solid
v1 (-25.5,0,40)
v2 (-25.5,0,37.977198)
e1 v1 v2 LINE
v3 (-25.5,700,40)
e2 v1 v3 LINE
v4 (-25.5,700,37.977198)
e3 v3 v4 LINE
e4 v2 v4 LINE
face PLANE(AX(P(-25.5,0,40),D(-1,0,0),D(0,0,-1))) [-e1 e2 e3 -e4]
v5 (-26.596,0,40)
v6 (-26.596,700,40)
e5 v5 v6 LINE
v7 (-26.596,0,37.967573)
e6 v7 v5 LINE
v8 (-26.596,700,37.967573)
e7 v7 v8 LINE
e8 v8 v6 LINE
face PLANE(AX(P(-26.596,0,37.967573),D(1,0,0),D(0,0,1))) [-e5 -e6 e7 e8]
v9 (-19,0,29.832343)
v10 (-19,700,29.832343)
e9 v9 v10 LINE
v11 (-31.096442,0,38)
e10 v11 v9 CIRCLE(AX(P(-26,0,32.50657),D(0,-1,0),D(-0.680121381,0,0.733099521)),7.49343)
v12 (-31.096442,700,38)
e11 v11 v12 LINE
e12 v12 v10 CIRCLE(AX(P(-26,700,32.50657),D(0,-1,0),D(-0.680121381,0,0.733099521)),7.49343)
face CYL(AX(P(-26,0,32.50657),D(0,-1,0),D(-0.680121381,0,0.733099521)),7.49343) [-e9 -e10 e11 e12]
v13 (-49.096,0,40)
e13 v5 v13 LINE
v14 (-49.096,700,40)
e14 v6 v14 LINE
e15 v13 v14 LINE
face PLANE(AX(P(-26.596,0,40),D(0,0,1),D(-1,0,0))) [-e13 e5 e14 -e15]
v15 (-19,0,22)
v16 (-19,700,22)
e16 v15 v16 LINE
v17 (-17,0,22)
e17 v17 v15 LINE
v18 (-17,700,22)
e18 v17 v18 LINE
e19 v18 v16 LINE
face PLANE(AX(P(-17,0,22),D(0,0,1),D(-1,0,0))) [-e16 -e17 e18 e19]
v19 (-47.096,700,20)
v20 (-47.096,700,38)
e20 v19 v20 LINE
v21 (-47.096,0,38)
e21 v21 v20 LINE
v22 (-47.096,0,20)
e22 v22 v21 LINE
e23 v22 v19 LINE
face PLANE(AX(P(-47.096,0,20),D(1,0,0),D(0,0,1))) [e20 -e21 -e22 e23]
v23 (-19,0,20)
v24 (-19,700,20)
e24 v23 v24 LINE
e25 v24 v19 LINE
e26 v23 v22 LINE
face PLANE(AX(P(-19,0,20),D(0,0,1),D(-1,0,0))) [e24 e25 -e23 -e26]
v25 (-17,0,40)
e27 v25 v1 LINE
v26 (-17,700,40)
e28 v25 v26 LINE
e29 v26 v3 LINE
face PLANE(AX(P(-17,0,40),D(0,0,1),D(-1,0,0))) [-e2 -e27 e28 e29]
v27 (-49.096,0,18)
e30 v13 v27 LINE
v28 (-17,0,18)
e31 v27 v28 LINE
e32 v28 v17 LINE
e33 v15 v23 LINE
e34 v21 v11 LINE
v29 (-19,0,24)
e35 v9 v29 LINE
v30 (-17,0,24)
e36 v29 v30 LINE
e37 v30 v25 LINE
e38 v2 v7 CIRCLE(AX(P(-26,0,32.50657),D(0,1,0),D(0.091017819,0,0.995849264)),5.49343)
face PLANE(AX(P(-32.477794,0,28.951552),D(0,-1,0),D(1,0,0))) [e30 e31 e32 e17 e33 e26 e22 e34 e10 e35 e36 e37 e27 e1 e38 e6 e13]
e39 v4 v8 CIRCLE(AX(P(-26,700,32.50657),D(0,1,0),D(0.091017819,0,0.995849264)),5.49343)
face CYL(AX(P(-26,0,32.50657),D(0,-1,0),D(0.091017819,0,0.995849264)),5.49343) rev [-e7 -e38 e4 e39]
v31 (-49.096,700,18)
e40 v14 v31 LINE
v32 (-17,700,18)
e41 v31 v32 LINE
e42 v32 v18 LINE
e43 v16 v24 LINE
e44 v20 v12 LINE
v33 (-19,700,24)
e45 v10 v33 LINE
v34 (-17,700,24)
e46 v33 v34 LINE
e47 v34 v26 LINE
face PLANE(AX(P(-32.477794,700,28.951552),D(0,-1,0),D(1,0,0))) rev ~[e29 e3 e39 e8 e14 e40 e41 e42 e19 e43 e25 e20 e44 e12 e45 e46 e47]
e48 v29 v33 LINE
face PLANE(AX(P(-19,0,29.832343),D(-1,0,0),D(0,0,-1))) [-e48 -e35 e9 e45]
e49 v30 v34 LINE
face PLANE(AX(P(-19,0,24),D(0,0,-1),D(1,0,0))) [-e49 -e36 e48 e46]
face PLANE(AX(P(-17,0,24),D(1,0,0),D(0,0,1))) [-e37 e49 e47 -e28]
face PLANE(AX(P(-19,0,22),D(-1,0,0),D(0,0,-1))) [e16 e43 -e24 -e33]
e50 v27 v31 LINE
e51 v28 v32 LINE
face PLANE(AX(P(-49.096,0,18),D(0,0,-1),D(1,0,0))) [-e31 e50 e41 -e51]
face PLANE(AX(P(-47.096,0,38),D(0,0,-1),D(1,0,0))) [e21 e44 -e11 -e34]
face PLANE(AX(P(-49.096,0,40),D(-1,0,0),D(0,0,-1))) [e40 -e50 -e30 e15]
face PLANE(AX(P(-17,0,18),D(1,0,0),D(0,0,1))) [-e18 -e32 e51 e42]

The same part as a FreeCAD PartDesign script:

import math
import FreeCAD as App
import Part
import Sketcher
Q = App.Units.Quantity

doc = App.newDocument("Part")
body = doc.addObject("PartDesign::Body", "Body")

sketch1 = body.newObject("Sketcher::SketchObject", "Sketch")
sketch1.AttachmentSupport = (doc.getObject("XZ_Plane"), [""])
sketch1.MapMode = "FlatFace"
sketch1.addGeometry([
    Part.LineSegment(App.Vector(7.5, 37.974085, 0), App.Vector(7.5, 40, 0)),
    Part.LineSegment(App.Vector(7.5, 40, 0), App.Vector(-15, 40, 0)),
    Part.LineSegment(App.Vector(-15, 40, 0), App.Vector(-15, 24, 0)),
    Part.LineSegment(App.Vector(-15, 24, 0), App.Vector(-11, 24, 0)),
    Part.LineSegment(App.Vector(-11, 24, 0), App.Vector(-11, 26, 0)),
    Part.LineSegment(App.Vector(-11, 26, 0), App.Vector(-9, 26, 0)),
    Part.LineSegment(App.Vector(-9, 26, 0), App.Vector(-9, 20, 0)),
    Part.LineSegment(App.Vector(-9, 20, 0), App.Vector(-11, 20, 0)),
    Part.LineSegment(App.Vector(-11, 20, 0), App.Vector(-11, 22, 0)),
    Part.LineSegment(App.Vector(-11, 22, 0), App.Vector(-15, 22, 0)),
    Part.LineSegment(App.Vector(-15, 22, 0), App.Vector(-15, 7.7, 0)),
    Part.LineSegment(App.Vector(-15, 7.7, 0), App.Vector(-13, 7.7, 0)),
    Part.LineSegment(App.Vector(-13, 7.7, 0), App.Vector(-13, 11.492084, 0)),
    Part.LineSegment(App.Vector(-13, 11.492084, 0), App.Vector(-7, 11.492084, 0)),
    Part.LineSegment(App.Vector(-7, 11.492084, 0), App.Vector(-7, 3.7, 0)),
    Part.LineSegment(App.Vector(-7, 3.7, 0), App.Vector(-11, 3.7, 0)),
    Part.LineSegment(App.Vector(-11, 3.7, 0), App.Vector(-11, 5.7, 0)),
    Part.LineSegment(App.Vector(-11, 5.7, 0), App.Vector(-15, 5.7, 0)),
    Part.LineSegment(App.Vector(-15, 5.7, 0), App.Vector(-15, 0, 0)),
    Part.LineSegment(App.Vector(-15, 0, 0), App.Vector(-5, 0, 0)),
    Part.LineSegment(App.Vector(-5, 0, 0), App.Vector(-5, 13.492084, 0)),
    Part.LineSegment(App.Vector(-5, 13.492084, 0), App.Vector(-9.158894, 13.492084, 0)),
    Part.LineSegment(App.Vector(-9.158894, 13.492084, 0), App.Vector(-9.158894, 15.492084, 0)),
    Part.LineSegment(App.Vector(-9.158894, 15.492084, 0), App.Vector(1.5, 20, 0)),
    Part.LineSegment(App.Vector(1.5, 20, 0), App.Vector(10.841106, 15.492084, 0)),
    Part.LineSegment(App.Vector(10.841106, 15.492084, 0), App.Vector(10.841106, 13.492084, 0)),
    Part.LineSegment(App.Vector(10.841106, 13.492084, 0), App.Vector(8, 13.492084, 0)),
    Part.LineSegment(App.Vector(8, 13.492084, 0), App.Vector(8, 0, 0)),
    Part.LineSegment(App.Vector(8, 0, 0), App.Vector(17, 0, 0)),
    Part.LineSegment(App.Vector(17, 0, 0), App.Vector(17, 40, 0)),
    Part.LineSegment(App.Vector(17, 40, 0), App.Vector(8.5, 40, 0)),
    Part.LineSegment(App.Vector(8.5, 40, 0), App.Vector(8.5, 37.974085, 0)),
    Part.ArcOfCircle(Part.Circle(App.Vector(8, 32.50657, 0), App.Vector(0, 0, 1), 5.49033), math.radians(14.369826), math.radians(84.774879)),
    Part.LineSegment(App.Vector(13.318559, 33.869159, 0), App.Vector(13.431853, 31.707387, 0)),
    Part.ArcOfCircle(Part.Circle(App.Vector(8, 32.50657, 0), App.Vector(0, 0, 1), 5.49033), math.radians(95.225121), math.radians(351.630174)),
    Part.LineSegment(App.Vector(-13, 18, 0), App.Vector(-8.363471, 18, 0)),
    Part.LineSegment(App.Vector(-8.363471, 18, 0), App.Vector(-11.158894, 16.817745, 0)),
    Part.LineSegment(App.Vector(-11.158894, 16.817745, 0), App.Vector(-11.158894, 13.492084, 0)),
    Part.LineSegment(App.Vector(-11.158894, 13.492084, 0), App.Vector(-13, 13.492084, 0)),
    Part.LineSegment(App.Vector(-13, 13.492084, 0), App.Vector(-13, 18, 0)),
    Part.LineSegment(App.Vector(-13, 28, 0), App.Vector(-13, 37.999999, 0)),
    Part.LineSegment(App.Vector(-13, 37.999999, 0), App.Vector(2.908116, 37.999999, 0)),
    Part.ArcOfCircle(Part.Circle(App.Vector(8, 32.50657, 0), App.Vector(0, 0, 1), 7.49033), math.radians(132.827575), math.radians(339.153685)),
    Part.LineSegment(App.Vector(15, 29.841043, 0), App.Vector(15, 2, 0)),
    Part.LineSegment(App.Vector(15, 2, 0), App.Vector(10, 2, 0)),
    Part.LineSegment(App.Vector(10, 2, 0), App.Vector(10, 12, 0)),
    Part.LineSegment(App.Vector(10, 12, 0), App.Vector(12.841106, 12, 0)),
    Part.LineSegment(App.Vector(12.841106, 12, 0), App.Vector(12.841106, 16.747619, 0)),
    Part.LineSegment(App.Vector(12.841106, 16.747619, 0), App.Vector(1.554336, 22.194492, 0)),
    Part.LineSegment(App.Vector(1.554336, 22.194492, 0), App.Vector(-7, 18.576646, 0)),
    Part.LineSegment(App.Vector(-7, 18.576646, 0), App.Vector(-7, 28, 0)),
    Part.LineSegment(App.Vector(-7, 28, 0), App.Vector(-13, 28, 0)),
    Part.ArcOfCircle(Part.Circle(App.Vector(7.999933, 32.506498, 0), App.Vector(0, 0, 1), 7.490429), math.radians(47.060637), math.radians(47.172425)),
    Part.LineSegment(App.Vector(13.091884, 37.999999, 0), App.Vector(13.102071, 37.999999, 0)),
    Part.LineSegment(App.Vector(13.102071, 37.999999, 0), App.Vector(13.102592, 37.990054, 0)),
], False)
sketch1.addConstraint([
    Sketcher.Constraint("Coincident", 0, 2, 1, 1),
    Sketcher.Constraint("Coincident", 1, 2, 2, 1),
    Sketcher.Constraint("Coincident", 2, 2, 3, 1),
    Sketcher.Constraint("Coincident", 3, 2, 4, 1),
    Sketcher.Constraint("Coincident", 4, 2, 5, 1),
    Sketcher.Constraint("Coincident", 5, 2, 6, 1),
    Sketcher.Constraint("Coincident", 6, 2, 7, 1),
    Sketcher.Constraint("Coincident", 7, 2, 8, 1),
    Sketcher.Constraint("Coincident", 8, 2, 9, 1),
    Sketcher.Constraint("Coincident", 9, 2, 10, 1),
    Sketcher.Constraint("Coincident", 10, 2, 11, 1),
    Sketcher.Constraint("Coincident", 11, 2, 12, 1),
    Sketcher.Constraint("Coincident", 12, 2, 13, 1),
    Sketcher.Constraint("Coincident", 13, 2, 14, 1),
    Sketcher.Constraint("Coincident", 14, 2, 15, 1),
    Sketcher.Constraint("Coincident", 15, 2, 16, 1),
    Sketcher.Constraint("Coincident", 16, 2, 17, 1),
    Sketcher.Constraint("Coincident", 17, 2, 18, 1),
    Sketcher.Constraint("Coincident", 18, 2, 19, 1),
    Sketcher.Constraint("Coincident", 19, 2, 20, 1),
    Sketcher.Constraint("Coincident", 20, 2, 21, 1),
    Sketcher.Constraint("Coincident", 21, 2, 22, 1),
    Sketcher.Constraint("Coincident", 22, 2, 23, 1),
    Sketcher.Constraint("Coincident", 23, 2, 24, 1),
    Sketcher.Constraint("Coincident", 24, 2, 25, 1),
    Sketcher.Constraint("Coincident", 25, 2, 26, 1),
    Sketcher.Constraint("Coincident", 26, 2, 27, 1),
    Sketcher.Constraint("Coincident", 27, 2, 28, 1),
    Sketcher.Constraint("Coincident", 28, 2, 29, 1),
    Sketcher.Constraint("Coincident", 29, 2, 30, 1),
    Sketcher.Constraint("Coincident", 30, 2, 31, 1),
    Sketcher.Constraint("Coincident", 31, 2, 32, 2),
    Sketcher.Constraint("Coincident", 32, 1, 33, 1),
    Sketcher.Constraint("Coincident", 33, 2, 34, 2),
    Sketcher.Constraint("Coincident", 34, 1, 0, 1),
    Sketcher.Constraint("Coincident", 35, 2, 36, 1),
    Sketcher.Constraint("Coincident", 36, 2, 37, 1),
    Sketcher.Constraint("Coincident", 37, 2, 38, 1),
    Sketcher.Constraint("Coincident", 38, 2, 39, 1),
    Sketcher.Constraint("Coincident", 39, 2, 35, 1),
    Sketcher.Constraint("Coincident", 40, 2, 41, 1),
    Sketcher.Constraint("Coincident", 41, 2, 42, 1),
    Sketcher.Constraint("Coincident", 42, 2, 43, 1),
    Sketcher.Constraint("Coincident", 43, 2, 44, 1),
    Sketcher.Constraint("Coincident", 44, 2, 45, 1),
    Sketcher.Constraint("Coincident", 45, 2, 46, 1),
    Sketcher.Constraint("Coincident", 46, 2, 47, 1),
    Sketcher.Constraint("Coincident", 47, 2, 48, 1),
    Sketcher.Constraint("Coincident", 48, 2, 49, 1),
    Sketcher.Constraint("Coincident", 49, 2, 50, 1),
    Sketcher.Constraint("Coincident", 50, 2, 51, 1),
    Sketcher.Constraint("Coincident", 51, 2, 40, 1),
    Sketcher.Constraint("Coincident", 52, 2, 53, 1),
    Sketcher.Constraint("Coincident", 53, 2, 54, 1),
    Sketcher.Constraint("Coincident", 54, 2, 52, 1),
    Sketcher.Constraint("Vertical", 0),
    Sketcher.Constraint("Horizontal", 1),
    Sketcher.Constraint("Vertical", 2),
    Sketcher.Constraint("Horizontal", 3),
    Sketcher.Constraint("Vertical", 4),
    Sketcher.Constraint("Horizontal", 5),
    Sketcher.Constraint("Vertical", 6),
    Sketcher.Constraint("Horizontal", 7),
    Sketcher.Constraint("Vertical", 8),
    Sketcher.Constraint("Horizontal", 9),
    Sketcher.Constraint("Vertical", 10),
    Sketcher.Constraint("Horizontal", 11),
    Sketcher.Constraint("Vertical", 12),
    Sketcher.Constraint("Horizontal", 13),
    Sketcher.Constraint("Vertical", 14),
    Sketcher.Constraint("Horizontal", 15),
    Sketcher.Constraint("Vertical", 16),
    Sketcher.Constraint("Horizontal", 17),
    Sketcher.Constraint("Vertical", 18),
    Sketcher.Constraint("Horizontal", 19),
    Sketcher.Constraint("Vertical", 20),
    Sketcher.Constraint("Horizontal", 21),
    Sketcher.Constraint("Vertical", 22),
    Sketcher.Constraint("Vertical", 25),
    Sketcher.Constraint("Horizontal", 26),
    Sketcher.Constraint("Vertical", 27),
    Sketcher.Constraint("Horizontal", 28),
    Sketcher.Constraint("Vertical", 29),
    Sketcher.Constraint("Horizontal", 30),
    Sketcher.Constraint("Vertical", 31),
    Sketcher.Constraint("Horizontal", 35),
    Sketcher.Constraint("Vertical", 37),
    Sketcher.Constraint("Horizontal", 38),
    Sketcher.Constraint("Vertical", 39),
    Sketcher.Constraint("Vertical", 40),
    Sketcher.Constraint("Horizontal", 41),
    Sketcher.Constraint("Vertical", 43),
    Sketcher.Constraint("Horizontal", 44),
    Sketcher.Constraint("Vertical", 45),
    Sketcher.Constraint("Horizontal", 46),
    Sketcher.Constraint("Vertical", 47),
    Sketcher.Constraint("Vertical", 50),
    Sketcher.Constraint("Horizontal", 51),
    Sketcher.Constraint("Horizontal", 53),
    Sketcher.Constraint("Coincident", 34, 3, 32, 3),
    Sketcher.Constraint("Coincident", 42, 3, 32, 3),
    Sketcher.Constraint("PointOnObject", 18, 2, -1),
    Sketcher.Constraint("PointOnObject", 27, 2, -1),
    Sketcher.Constraint("DistanceX", 3, 1, 3, 2, Q("4 mm")),
    Sketcher.Constraint("DistanceX", 5, 1, 5, 2, Q("2 mm")),
    Sketcher.Constraint("DistanceX", 7, 2, 7, 1, Q("2 mm")),
    Sketcher.Constraint("DistanceX", 9, 2, 9, 1, Q("4 mm")),
    Sketcher.Constraint("DistanceX", 11, 1, 11, 2, Q("2 mm")),
    Sketcher.Constraint("DistanceX", 13, 1, 13, 2, Q("6 mm")),
    Sketcher.Constraint("DistanceX", 15, 2, 15, 1, Q("4 mm")),
    Sketcher.Constraint("DistanceX", 17, 2, 17, 1, Q("4 mm")),
    Sketcher.Constraint("DistanceX", 19, 1, 19, 2, Q("10 mm")),
    Sketcher.Constraint("DistanceX", 28, 1, 28, 2, Q("9 mm")),
    Sketcher.Constraint("DistanceX", 44, 2, 44, 1, Q("5 mm")),
    Sketcher.Constraint("DistanceX", 51, 2, 51, 1, Q("6 mm")),
    Sketcher.Constraint("DistanceY", 2, 2, 2, 1, Q("16 mm")),
    Sketcher.Constraint("DistanceY", 4, 1, 4, 2, Q("2 mm")),
    Sketcher.Constraint("DistanceY", 6, 2, 6, 1, Q("6 mm")),
    Sketcher.Constraint("DistanceY", 8, 1, 8, 2, Q("2 mm")),
    Sketcher.Constraint("DistanceY", 16, 1, 16, 2, Q("2 mm")),
    Sketcher.Constraint("DistanceY", 22, 1, 22, 2, Q("2 mm")),
    Sketcher.Constraint("DistanceY", 25, 2, 25, 1, Q("2 mm")),
    Sketcher.Constraint("DistanceY", 29, 1, 29, 2, Q("40 mm")),
    Sketcher.Constraint("DistanceY", 40, 1, 40, 2, Q("9.999999 mm")),
    Sketcher.Constraint("DistanceY", 45, 1, 45, 2, Q("10 mm")),
    Sketcher.Constraint("DistanceX", 1, 2, 1, 1, Q("22.5 mm")),
    Sketcher.Constraint("DistanceX", 30, 2, 30, 1, Q("8.5 mm")),
    Sketcher.Constraint("DistanceY", 10, 2, 10, 1, Q("14.3 mm")),
    Sketcher.Constraint("DistanceY", 18, 2, 18, 1, Q("5.7 mm")),
    Sketcher.Constraint("DistanceX", -1, 1, 32, 3, Q("8 mm")),
    Sketcher.Constraint("DistanceY", -1, 1, 0, 2, Q("40 mm")),
    Sketcher.Constraint("DistanceX", 1, 2, -1, 1, Q("15 mm")),
    Sketcher.Constraint("DistanceY", -1, 1, 23, 2, Q("20 mm")),
    Sketcher.Constraint("DistanceX", -1, 1, 26, 2, Q("8 mm")),
    Sketcher.Constraint("DistanceY", -1, 1, 35, 2, Q("18 mm")),
    Sketcher.Constraint("DistanceX", 38, 2, -1, 1, Q("13 mm")),
    Sketcher.Constraint("DistanceX", 40, 2, -1, 1, Q("13 mm")),
    Sketcher.Constraint("DistanceY", -1, 1, 40, 2, Q("37.999999 mm")),
    Sketcher.Constraint("DistanceX", -1, 1, 42, 2, Q("15 mm")),
    Sketcher.Constraint("DistanceY", -1, 1, 43, 2, Q("2 mm")),
    Sketcher.Constraint("DistanceY", -1, 1, 52, 2, Q("37.999999 mm")),
    Sketcher.Constraint("DistanceY", 13, 2, 20, 2, Q("2 mm")),
    Sketcher.Constraint("DistanceY", 20, 2, 24, 2, Q("2 mm")),
    Sketcher.Constraint("DistanceX", 36, 2, 22, 2, Q("2 mm")),
    Sketcher.Constraint("DistanceY", 12, 2, 37, 2, Q("2 mm")),
    Sketcher.Constraint("DistanceX", 25, 2, 46, 2, Q("2 mm")),
    Sketcher.Constraint("DistanceX", -1, 1, 23, 2, Q("1.5 mm")),
    Sketcher.Constraint("Radius", 32, Q("5.49033 mm")),
    Sketcher.Constraint("Radius", 34, Q("5.49033 mm")),
    Sketcher.Constraint("Radius", 42, Q("7.49033 mm")),
    Sketcher.Constraint("Radius", 52, Q("7.490429 mm")),
    Sketcher.Constraint("DistanceX", 35, 1, 35, 2, Q("4.636529 mm")),
    Sketcher.Constraint("DistanceY", 37, 2, 37, 1, Q("3.325661 mm")),
    Sketcher.Constraint("DistanceY", 47, 1, 47, 2, Q("4.747619 mm")),
    Sketcher.Constraint("DistanceY", 36, 2, 49, 2, Q("1.758902 mm")),
    Sketcher.Constraint("Distance", 24, Q("10.37196 mm")),
    Sketcher.Constraint("Distance", 33, Q("2.164739 mm")),
    Sketcher.Constraint("Distance", 48, Q("12.532342 mm")),
    Sketcher.Constraint("Distance", 49, Q("9.287921 mm")),
    Sketcher.Constraint("Distance", 54, Q("0.009959 mm")),
    Sketcher.Constraint("DistanceX", 21, 2, 21, 1, Q("4.158894 mm")),
    Sketcher.Constraint("DistanceX", 26, 2, 26, 1, Q("2.841106 mm")),
    Sketcher.Constraint("DistanceX", 41, 1, 41, 2, Q("15.908116 mm")),
    Sketcher.Constraint("DistanceX", 53, 1, 53, 2, Q("0.010187 mm")),
    Sketcher.Constraint("DistanceX", -1, 1, 32, 1, Q("13.318559 mm")),
    Sketcher.Constraint("DistanceX", -1, 1, 53, 2, Q("13.102071 mm")),
    Sketcher.Constraint("DistanceY", 52, 3, 32, 1, Q("1.362661 mm")),
])
pad1 = body.newObject("PartDesign::Pad", "Pad")
pad1.Profile = sketch1
pad1.Length = 1910
pad1.Reversed = True

sketch2 = body.newObject("Sketcher::SketchObject", "Sketch001")
sketch2.AttachmentSupport = (doc.getObject("XZ_Plane"), [""])
sketch2.MapMode = "FlatFace"
sketch2.addGeometry([
    Part.LineSegment(App.Vector(17, 0, 0), App.Vector(17, 40, 0)),
    Part.LineSegment(App.Vector(17, 40, 0), App.Vector(-15, 40, 0)),
    Part.LineSegment(App.Vector(-15, 40, 0), App.Vector(-15, 0, 0)),
    Part.LineSegment(App.Vector(-15, 0, 0), App.Vector(17, 0, 0)),
], False)
sketch2.addConstraint([
    Sketcher.Constraint("Coincident", 0, 2, 1, 1),
    Sketcher.Constraint("Coincident", 1, 2, 2, 1),
    Sketcher.Constraint("Coincident", 2, 2, 3, 1),
    Sketcher.Constraint("Coincident", 3, 2, 0, 1),
    Sketcher.Constraint("Vertical", 0),
    Sketcher.Constraint("Horizontal", 1),
    Sketcher.Constraint("Vertical", 2),
    Sketcher.Constraint("Horizontal", 3),
    Sketcher.Constraint("PointOnObject", 2, 2, -1),
    Sketcher.Constraint("DistanceX", 1, 2, 1, 1, Q("32 mm")),
    Sketcher.Constraint("DistanceY", 0, 1, 0, 2, Q("40 mm")),
    Sketcher.Constraint("DistanceX", -1, 1, 0, 2, Q("17 mm")),
])
pocket1 = body.newObject("PartDesign::Pocket", "Pocket")
pocket1.Profile = sketch2
pocket1.Length = 2000
body2 = doc.addObject("PartDesign::Body", "Body001")

sketch3 = body2.newObject("Sketcher::SketchObject", "Sketch002")
sketch3.AttachmentSupport = (doc.getObject("XZ_Plane001"), [""])
sketch3.MapMode = "FlatFace"
sketch3.addGeometry([
    Part.ArcOfCircle(Part.Circle(App.Vector(-26, 32.5, 0), App.Vector(0, 0, 1), 5.5), math.radians(96), math.radians(445)),
    Part.LineSegment(App.Vector(-26.6, 38, 0), App.Vector(-26.6, 40, 0)),
    Part.LineSegment(App.Vector(-26.6, 40, 0), App.Vector(-49.1, 40, 0)),
    Part.LineSegment(App.Vector(-49.1, 40, 0), App.Vector(-49.1, 18, 0)),
    Part.LineSegment(App.Vector(-49.1, 18, 0), App.Vector(-17, 18, 0)),
    Part.LineSegment(App.Vector(-17, 18, 0), App.Vector(-17, 22, 0)),
    Part.LineSegment(App.Vector(-17, 22, 0), App.Vector(-19, 22, 0)),
    Part.LineSegment(App.Vector(-19, 22, 0), App.Vector(-19, 20, 0)),
    Part.LineSegment(App.Vector(-19, 20, 0), App.Vector(-47.1, 20, 0)),
    Part.LineSegment(App.Vector(-47.1, 20, 0), App.Vector(-47.1, 38, 0)),
    Part.LineSegment(App.Vector(-47.1, 38, 0), App.Vector(-31.1, 38, 0)),
    Part.ArcOfCircle(Part.Circle(App.Vector(-26, 32.5, 0), App.Vector(0, 0, 1), 7.5), math.radians(133), math.radians(339)),
    Part.LineSegment(App.Vector(-19, 29.8, 0), App.Vector(-19, 24, 0)),
    Part.LineSegment(App.Vector(-19, 24, 0), App.Vector(-17, 24, 0)),
    Part.LineSegment(App.Vector(-17, 24, 0), App.Vector(-17, 40, 0)),
    Part.LineSegment(App.Vector(-17, 40, 0), App.Vector(-25.5, 40, 0)),
    Part.LineSegment(App.Vector(-25.5, 40, 0), App.Vector(-25.5, 38, 0)),
], False)
sketch3.addConstraint([
    Sketcher.Constraint("Coincident", 0, 1, 1, 1),
    Sketcher.Constraint("Coincident", 1, 2, 2, 1),
    Sketcher.Constraint("Coincident", 2, 2, 3, 1),
    Sketcher.Constraint("Coincident", 3, 2, 4, 1),
    Sketcher.Constraint("Coincident", 4, 2, 5, 1),
    Sketcher.Constraint("Coincident", 5, 2, 6, 1),
    Sketcher.Constraint("Coincident", 6, 2, 7, 1),
    Sketcher.Constraint("Coincident", 7, 2, 8, 1),
    Sketcher.Constraint("Coincident", 8, 2, 9, 1),
    Sketcher.Constraint("Coincident", 9, 2, 10, 1),
    Sketcher.Constraint("Coincident", 10, 2, 11, 1),
    Sketcher.Constraint("Coincident", 11, 2, 12, 1),
    Sketcher.Constraint("Coincident", 12, 2, 13, 1),
    Sketcher.Constraint("Coincident", 13, 2, 14, 1),
    Sketcher.Constraint("Coincident", 14, 2, 15, 1),
    Sketcher.Constraint("Coincident", 15, 2, 16, 1),
    Sketcher.Constraint("Coincident", 16, 2, 0, 2),
    Sketcher.Constraint("Vertical", 1),
    Sketcher.Constraint("Horizontal", 2),
    Sketcher.Constraint("Vertical", 3),
    Sketcher.Constraint("Horizontal", 4),
    Sketcher.Constraint("Vertical", 5),
    Sketcher.Constraint("Horizontal", 6),
    Sketcher.Constraint("Vertical", 7),
    Sketcher.Constraint("Horizontal", 8),
    Sketcher.Constraint("Vertical", 9),
    Sketcher.Constraint("Horizontal", 10),
    Sketcher.Constraint("Vertical", 12),
    Sketcher.Constraint("Horizontal", 13),
    Sketcher.Constraint("Vertical", 14),
    Sketcher.Constraint("Horizontal", 15),
    Sketcher.Constraint("Vertical", 16),
    Sketcher.Constraint("Coincident", 11, 3, 0, 3),
    Sketcher.Constraint("Horizontal", 2, 2, 14, 2),
    Sketcher.Constraint("Vertical", 7, 2, 11, 2),
    Sketcher.Constraint("Vertical", 5, 2, 13, 2),
    Sketcher.Constraint("Equal", 13, 7),
    Sketcher.Constraint("DistanceX", 6, 2, 6, 1, Q("2 mm")),
    Sketcher.Constraint("DistanceY", 3, 2, 3, 1, Q("22 mm")),
    Sketcher.Constraint("DistanceY", 5, 1, 5, 2, Q("4 mm")),
    Sketcher.Constraint("DistanceY", 9, 1, 9, 2, Q("18 mm")),
    Sketcher.Constraint("DistanceY", 14, 1, 14, 2, Q("16 mm")),
    Sketcher.Constraint("DistanceX", 2, 2, 2, 1, Q("22.5 mm")),
    Sketcher.Constraint("DistanceX", 15, 2, 15, 1, Q("8.5 mm")),
    Sketcher.Constraint("DistanceX", 0, 3, -1, 1, Q("26 mm")),
    Sketcher.Constraint("DistanceY", -1, 1, 1, 2, Q("40 mm")),
    Sketcher.Constraint("DistanceX", 4, 2, -1, 1, Q("17 mm")),
    Sketcher.Constraint("DistanceX", 3, 2, 8, 2, Q("2 mm")),
    Sketcher.Constraint("DistanceX", 4, 1, 4, 2, Q("32.096 mm")),
    Sketcher.Constraint("Radius", 0, Q("5.49343 mm")),
    Sketcher.Constraint("Radius", 11, Q("7.49343 mm")),
    Sketcher.Constraint("DistanceY", 16, 2, 16, 1, Q("2.022802 mm")),
])
pad2 = body2.newObject("PartDesign::Pad", "Pad001")
pad2.Profile = sketch3
pad2.Length = 700
pad2.Reversed = True

doc.recompute()
